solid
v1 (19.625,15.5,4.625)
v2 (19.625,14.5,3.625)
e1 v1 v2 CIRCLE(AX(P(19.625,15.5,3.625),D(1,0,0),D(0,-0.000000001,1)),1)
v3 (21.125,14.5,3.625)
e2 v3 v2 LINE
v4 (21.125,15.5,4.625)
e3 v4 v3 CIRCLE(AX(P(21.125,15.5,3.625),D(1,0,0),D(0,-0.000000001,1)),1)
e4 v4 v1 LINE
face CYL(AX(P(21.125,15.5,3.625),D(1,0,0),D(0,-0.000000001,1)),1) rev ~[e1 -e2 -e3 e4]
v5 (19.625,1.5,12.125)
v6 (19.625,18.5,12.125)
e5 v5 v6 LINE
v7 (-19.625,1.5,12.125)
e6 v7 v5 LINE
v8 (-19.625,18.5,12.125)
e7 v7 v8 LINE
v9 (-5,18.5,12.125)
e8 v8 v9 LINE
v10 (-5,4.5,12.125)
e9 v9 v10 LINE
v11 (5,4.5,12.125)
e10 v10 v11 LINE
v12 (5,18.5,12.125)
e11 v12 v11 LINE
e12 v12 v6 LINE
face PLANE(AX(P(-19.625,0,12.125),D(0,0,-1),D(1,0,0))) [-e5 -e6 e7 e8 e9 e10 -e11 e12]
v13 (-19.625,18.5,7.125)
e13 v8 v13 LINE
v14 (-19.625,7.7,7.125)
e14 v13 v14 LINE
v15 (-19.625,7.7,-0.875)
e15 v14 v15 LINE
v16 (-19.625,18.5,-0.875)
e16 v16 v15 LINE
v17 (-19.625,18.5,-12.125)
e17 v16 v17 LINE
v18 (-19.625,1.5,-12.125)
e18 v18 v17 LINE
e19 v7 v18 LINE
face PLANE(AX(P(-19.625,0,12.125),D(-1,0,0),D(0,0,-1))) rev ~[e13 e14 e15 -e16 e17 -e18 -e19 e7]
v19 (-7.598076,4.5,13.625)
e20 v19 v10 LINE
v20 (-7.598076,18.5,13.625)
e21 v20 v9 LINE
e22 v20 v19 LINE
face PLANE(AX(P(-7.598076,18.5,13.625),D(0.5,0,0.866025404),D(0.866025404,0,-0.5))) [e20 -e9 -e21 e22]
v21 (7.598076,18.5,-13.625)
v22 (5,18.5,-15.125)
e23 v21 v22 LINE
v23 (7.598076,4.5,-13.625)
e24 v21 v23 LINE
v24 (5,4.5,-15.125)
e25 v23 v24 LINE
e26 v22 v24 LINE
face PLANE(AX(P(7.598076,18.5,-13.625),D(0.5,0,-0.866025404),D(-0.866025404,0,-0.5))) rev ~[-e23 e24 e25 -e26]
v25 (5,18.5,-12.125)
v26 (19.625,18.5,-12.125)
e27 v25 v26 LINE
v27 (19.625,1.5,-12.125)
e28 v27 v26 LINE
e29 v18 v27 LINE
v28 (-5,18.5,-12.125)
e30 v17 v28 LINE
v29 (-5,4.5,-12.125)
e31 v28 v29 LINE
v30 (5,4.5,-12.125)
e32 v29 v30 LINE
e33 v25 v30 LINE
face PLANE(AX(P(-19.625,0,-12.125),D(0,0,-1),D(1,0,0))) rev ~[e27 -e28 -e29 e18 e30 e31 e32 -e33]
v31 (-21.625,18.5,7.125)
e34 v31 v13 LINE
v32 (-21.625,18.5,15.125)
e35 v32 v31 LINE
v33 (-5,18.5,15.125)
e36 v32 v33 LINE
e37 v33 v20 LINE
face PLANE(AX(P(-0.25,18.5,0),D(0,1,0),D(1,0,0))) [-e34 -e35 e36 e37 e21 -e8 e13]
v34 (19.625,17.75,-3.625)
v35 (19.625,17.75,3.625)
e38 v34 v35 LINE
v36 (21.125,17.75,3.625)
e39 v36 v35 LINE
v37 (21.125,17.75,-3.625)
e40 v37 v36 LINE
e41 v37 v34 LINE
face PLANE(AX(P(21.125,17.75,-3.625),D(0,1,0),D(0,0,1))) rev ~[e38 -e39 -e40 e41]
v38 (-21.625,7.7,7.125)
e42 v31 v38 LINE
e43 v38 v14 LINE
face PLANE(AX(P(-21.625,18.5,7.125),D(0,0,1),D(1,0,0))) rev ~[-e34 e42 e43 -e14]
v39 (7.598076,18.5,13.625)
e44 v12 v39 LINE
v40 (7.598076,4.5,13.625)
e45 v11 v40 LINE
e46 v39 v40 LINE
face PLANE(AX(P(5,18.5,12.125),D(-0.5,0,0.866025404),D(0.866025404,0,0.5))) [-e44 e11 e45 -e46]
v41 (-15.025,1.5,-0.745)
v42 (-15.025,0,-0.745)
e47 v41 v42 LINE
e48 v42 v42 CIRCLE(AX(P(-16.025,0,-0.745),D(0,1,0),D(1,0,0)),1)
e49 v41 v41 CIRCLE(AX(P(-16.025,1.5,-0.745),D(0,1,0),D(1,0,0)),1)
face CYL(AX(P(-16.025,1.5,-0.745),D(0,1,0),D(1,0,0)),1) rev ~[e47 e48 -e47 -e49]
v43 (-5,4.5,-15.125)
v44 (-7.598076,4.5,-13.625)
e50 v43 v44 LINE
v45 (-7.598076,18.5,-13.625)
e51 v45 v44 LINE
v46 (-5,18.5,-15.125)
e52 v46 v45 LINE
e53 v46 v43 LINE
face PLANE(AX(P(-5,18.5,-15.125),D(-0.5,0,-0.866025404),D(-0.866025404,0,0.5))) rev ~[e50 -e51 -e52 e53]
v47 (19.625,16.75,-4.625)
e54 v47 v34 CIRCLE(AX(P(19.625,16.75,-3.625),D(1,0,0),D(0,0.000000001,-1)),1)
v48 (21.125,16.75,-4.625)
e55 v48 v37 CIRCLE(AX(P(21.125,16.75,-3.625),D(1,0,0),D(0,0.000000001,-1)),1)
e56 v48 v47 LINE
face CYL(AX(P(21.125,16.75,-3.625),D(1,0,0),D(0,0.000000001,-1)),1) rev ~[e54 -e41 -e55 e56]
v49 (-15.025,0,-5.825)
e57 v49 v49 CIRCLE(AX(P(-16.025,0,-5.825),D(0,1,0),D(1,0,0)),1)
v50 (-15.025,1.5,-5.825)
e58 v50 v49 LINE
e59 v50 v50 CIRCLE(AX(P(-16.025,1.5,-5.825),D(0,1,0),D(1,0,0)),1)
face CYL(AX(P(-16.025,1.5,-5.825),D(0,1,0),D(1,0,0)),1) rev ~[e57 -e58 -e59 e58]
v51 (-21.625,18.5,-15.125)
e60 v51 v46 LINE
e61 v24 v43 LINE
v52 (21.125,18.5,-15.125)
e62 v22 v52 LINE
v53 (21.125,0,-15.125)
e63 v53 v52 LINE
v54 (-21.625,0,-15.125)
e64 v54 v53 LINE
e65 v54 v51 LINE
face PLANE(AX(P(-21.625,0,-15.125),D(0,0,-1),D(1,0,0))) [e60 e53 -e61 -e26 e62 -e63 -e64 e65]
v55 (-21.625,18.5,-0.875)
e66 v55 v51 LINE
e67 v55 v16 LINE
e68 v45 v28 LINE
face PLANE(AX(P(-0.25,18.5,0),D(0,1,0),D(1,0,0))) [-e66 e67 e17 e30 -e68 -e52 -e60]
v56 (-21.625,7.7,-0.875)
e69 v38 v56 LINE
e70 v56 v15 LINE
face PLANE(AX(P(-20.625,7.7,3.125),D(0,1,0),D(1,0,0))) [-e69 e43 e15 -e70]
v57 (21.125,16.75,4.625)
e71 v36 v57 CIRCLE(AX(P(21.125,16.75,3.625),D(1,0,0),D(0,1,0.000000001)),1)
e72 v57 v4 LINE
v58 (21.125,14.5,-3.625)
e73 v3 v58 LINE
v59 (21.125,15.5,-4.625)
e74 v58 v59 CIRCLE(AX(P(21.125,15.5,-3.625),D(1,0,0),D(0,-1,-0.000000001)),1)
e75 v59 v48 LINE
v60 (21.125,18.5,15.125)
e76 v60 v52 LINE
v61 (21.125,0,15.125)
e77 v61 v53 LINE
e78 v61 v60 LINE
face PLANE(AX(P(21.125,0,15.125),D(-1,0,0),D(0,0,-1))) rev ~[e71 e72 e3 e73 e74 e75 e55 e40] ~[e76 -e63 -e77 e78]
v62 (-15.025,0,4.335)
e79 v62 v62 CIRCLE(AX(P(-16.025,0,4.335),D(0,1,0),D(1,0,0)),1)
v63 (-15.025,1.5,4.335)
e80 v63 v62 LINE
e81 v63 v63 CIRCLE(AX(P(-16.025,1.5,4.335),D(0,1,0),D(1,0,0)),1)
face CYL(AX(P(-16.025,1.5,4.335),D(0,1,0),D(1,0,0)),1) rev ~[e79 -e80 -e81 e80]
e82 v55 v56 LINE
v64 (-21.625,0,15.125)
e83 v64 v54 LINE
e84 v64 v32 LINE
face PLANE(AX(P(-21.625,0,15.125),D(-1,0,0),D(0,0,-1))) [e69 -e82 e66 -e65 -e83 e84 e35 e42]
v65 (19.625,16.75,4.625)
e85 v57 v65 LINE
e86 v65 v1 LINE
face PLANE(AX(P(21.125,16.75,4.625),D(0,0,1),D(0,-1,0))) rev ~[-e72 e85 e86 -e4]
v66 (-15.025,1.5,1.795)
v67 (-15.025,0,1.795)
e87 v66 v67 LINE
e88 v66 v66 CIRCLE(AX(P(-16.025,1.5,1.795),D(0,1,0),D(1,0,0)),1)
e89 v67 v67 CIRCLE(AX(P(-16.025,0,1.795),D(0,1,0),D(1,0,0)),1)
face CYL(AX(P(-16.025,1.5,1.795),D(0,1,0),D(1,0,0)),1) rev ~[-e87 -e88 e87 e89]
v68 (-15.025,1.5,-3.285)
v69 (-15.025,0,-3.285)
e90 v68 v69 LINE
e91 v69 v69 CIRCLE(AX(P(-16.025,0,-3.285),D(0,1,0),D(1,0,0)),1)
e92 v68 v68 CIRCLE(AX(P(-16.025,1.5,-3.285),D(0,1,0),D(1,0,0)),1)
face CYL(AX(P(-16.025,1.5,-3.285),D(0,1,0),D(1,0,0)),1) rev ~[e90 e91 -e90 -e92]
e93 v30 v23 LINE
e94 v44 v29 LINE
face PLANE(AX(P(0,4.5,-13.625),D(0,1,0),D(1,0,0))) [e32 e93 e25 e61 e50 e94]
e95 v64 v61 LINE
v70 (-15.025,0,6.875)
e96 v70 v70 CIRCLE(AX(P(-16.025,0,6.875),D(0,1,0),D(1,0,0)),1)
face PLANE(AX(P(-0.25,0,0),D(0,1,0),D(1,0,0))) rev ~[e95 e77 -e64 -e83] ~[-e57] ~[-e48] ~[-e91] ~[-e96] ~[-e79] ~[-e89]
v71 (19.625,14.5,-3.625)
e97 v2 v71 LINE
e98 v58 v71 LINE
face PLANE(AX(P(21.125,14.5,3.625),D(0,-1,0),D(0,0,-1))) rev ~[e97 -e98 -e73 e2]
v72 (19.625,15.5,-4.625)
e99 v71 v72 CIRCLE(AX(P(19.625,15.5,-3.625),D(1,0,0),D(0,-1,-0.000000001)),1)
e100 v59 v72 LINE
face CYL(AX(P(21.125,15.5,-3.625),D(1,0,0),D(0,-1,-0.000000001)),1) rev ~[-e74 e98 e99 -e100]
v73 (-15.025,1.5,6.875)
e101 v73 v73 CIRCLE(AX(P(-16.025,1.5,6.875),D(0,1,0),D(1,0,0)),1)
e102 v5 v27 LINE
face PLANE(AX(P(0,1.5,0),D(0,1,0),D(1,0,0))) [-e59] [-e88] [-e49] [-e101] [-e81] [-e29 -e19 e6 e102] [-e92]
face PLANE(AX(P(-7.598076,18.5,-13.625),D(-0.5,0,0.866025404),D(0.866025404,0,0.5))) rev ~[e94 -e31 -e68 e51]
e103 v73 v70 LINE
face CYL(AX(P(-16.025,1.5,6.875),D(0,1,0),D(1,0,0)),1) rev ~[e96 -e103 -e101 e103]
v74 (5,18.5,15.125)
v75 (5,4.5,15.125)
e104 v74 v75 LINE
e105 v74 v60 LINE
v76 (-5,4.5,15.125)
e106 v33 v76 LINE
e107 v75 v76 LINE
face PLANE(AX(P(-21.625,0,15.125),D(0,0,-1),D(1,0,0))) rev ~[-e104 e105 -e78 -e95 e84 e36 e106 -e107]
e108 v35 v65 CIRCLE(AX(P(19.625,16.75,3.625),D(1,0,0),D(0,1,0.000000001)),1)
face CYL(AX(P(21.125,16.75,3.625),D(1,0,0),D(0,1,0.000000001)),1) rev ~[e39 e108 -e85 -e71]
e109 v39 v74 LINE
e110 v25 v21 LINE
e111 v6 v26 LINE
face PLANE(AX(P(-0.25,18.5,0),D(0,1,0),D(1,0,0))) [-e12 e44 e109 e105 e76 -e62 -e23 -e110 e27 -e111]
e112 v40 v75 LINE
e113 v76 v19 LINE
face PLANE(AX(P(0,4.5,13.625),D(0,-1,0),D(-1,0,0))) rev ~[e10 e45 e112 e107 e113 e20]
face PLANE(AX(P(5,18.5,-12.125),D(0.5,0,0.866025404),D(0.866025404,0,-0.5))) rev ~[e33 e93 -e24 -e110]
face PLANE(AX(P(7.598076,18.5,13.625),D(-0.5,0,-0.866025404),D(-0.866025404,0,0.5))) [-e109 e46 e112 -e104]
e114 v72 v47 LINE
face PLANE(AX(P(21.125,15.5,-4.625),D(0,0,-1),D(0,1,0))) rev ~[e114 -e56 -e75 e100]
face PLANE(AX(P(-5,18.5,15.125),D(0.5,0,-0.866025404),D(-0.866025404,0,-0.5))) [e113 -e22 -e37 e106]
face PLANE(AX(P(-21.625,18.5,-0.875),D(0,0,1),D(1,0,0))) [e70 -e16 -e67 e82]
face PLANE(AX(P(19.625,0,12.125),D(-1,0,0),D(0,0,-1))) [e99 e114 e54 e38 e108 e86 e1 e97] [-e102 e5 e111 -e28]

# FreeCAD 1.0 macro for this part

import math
import FreeCAD as App
import Part
import Sketcher

V = App.Vector
Q = App.Units.Quantity


def add_polygon(sketch, points):
    """Adds a closed chain of lines whose ends are joined by coincident constraints."""
    first, n = sketch.GeometryCount, len(points)
    for a, b in zip(points, points[1:] + points[:1]):
        sketch.addGeometry(Part.LineSegment(App.Vector(*a, 0), App.Vector(*b, 0)), False)
    for i in range(n):
        sketch.addConstraint(Sketcher.Constraint("Coincident", first + i, 2, first + (i + 1) % n, 1))

doc = App.newDocument("Part")
params = doc.addObject("Spreadsheet::Sheet", "Params")
for row, (alias, value) in enumerate([
    ("sketch1_width", "39.25 mm"),
    ("sketch1_height", "24.25 mm"),
    ("pad1_length", "1.5 mm"),
    ("sketch2_width", "42.75 mm"),
    ("sketch2_width2", "39.25 mm"),
    ("sketch2_height", "30.25 mm"),
    ("pad2_length", "18.5 mm"),
    ("sketch3_width", "2 mm"),
    ("sketch3_height", "8 mm"),
    ("pocket1_length", "10.8 mm"),
    ("sketch4_radius", "1 mm"),
    ("sketch4_width", "1.25 mm"),
    ("sketch4_height", "7.25 mm"),
    ("sketch5_width", "10 mm"),
    ("sketch5_length", "3 mm"),
    ("pocket3_length", "14 mm"),
    ("sketch6_diameter", "2 mm"),
], start=1):
    params.set(f"A{row}", alias)
    params.set(f"B{row}", "=" + value)
    params.setAlias(f"B{row}", alias)

body = doc.addObject("PartDesign::Body", "Body")

# Sketch on XZ plane
sketch1 = body.newObject("Sketcher::SketchObject", "Sketch")
sketch1.AttachmentSupport = (doc.getObject("XZ_Plane"), [""])
sketch1.MapMode = "FlatFace"
add_polygon(sketch1, [(-19.625, -12.125), (-19.625, 12.125), (19.625, 12.125), (19.625, -12.125)])  # lines 0-3
sketch1.addConstraint([
    Sketcher.Constraint("Vertical", 0),
    Sketcher.Constraint("Horizontal", 1),
    Sketcher.Constraint("Vertical", 2),
    Sketcher.Constraint("Horizontal", 3),
    Sketcher.Constraint("Symmetric", 0, 2, 2, 2, -1, 1),
    Sketcher.Constraint("DistanceX", 1, 1, 1, 2, 39.25),
    Sketcher.Constraint("DistanceY", 0, 1, 0, 2, 24.25),
])
sketch1.setExpression("Constraints[9]", "Params.sketch1_width")
sketch1.setExpression("Constraints[10]", "Params.sketch1_height")
pad1 = body.newObject("PartDesign::Pad", "Pad")
pad1.Profile = sketch1
pad1.setExpression("Length", "Params.pad1_length")
pad1.Reversed = True

# Sketch on XZ plane
sketch2 = body.newObject("Sketcher::SketchObject", "Sketch001")
sketch2.AttachmentSupport = (doc.getObject("XZ_Plane"), [""])
sketch2.MapMode = "FlatFace"
add_polygon(sketch2, [(-21.625, -15.125), (-21.625, 15.125), (21.125, 15.125), (21.125, -15.125)])  # lines 0-3
add_polygon(sketch2, [(19.625, 12.125), (-19.625, 12.125), (-19.625, -12.125), (19.625, -12.125)])  # lines 4-7
sketch2.addConstraint([
    Sketcher.Constraint("Vertical", 0),
    Sketcher.Constraint("Horizontal", 1),
    Sketcher.Constraint("Vertical", 2),
    Sketcher.Constraint("Horizontal", 3),
    Sketcher.Constraint("Horizontal", 4),
    Sketcher.Constraint("Vertical", 5),
    Sketcher.Constraint("Horizontal", 6),
    Sketcher.Constraint("Vertical", 7),
    Sketcher.Constraint("Symmetric", 4, 2, 6, 2, -1, 1),
    Sketcher.Constraint("DistanceX", 0, 2, 4, 2, 2.0),
    Sketcher.Constraint("DistanceY", 4, 2, 0, 2, 3.0),
    Sketcher.Constraint("DistanceY", 3, 2, 5, 2, 3.0),
    Sketcher.Constraint("DistanceX", 1, 1, 1, 2, 42.75),
    Sketcher.Constraint("DistanceX", 4, 2, 4, 1, 39.25),
    Sketcher.Constraint("DistanceY", 0, 1, 0, 2, 30.25),
])
sketch2.setExpression("Constraints[20]", "Params.sketch2_width")
sketch2.setExpression("Constraints[21]", "Params.sketch2_width2")
sketch2.setExpression("Constraints[22]", "Params.sketch2_height")
pad2 = body.newObject("PartDesign::Pad", "Pad001")
pad2.Profile = sketch2
pad2.setExpression("Length", "Params.pad2_length")
pad2.Reversed = True

# Sketch on XZ plane
sketch3 = body.newObject("Sketcher::SketchObject", "Sketch002")
sketch3.AttachmentSupport = (doc.getObject("XZ_Plane"), [""])
sketch3.MapMode = "FlatFace"
sketch3.AttachmentOffset = App.Placement(V(0, 0, -18.5), App.Rotation())
add_polygon(sketch3, [(-21.625, -0.875), (-21.625, 7.125), (-19.625, 7.125), (-19.625, -0.875)])  # lines 0-3
sketch3.addConstraint([
    Sketcher.Constraint("Vertical", 0),
    Sketcher.Constraint("Horizontal", 1),
    Sketcher.Constraint("Vertical", 2),
    Sketcher.Constraint("Horizontal", 3),
    Sketcher.Constraint("DistanceX", 1, 1, 1, 2, 2.0),
    Sketcher.Constraint("DistanceY", 0, 1, 0, 2, 8.0),
    Sketcher.Constraint("DistanceX", 0, 2, -1, 1, 21.625),
    Sketcher.Constraint("DistanceY", -1, 1, 0, 2, 7.125),
])
sketch3.setExpression("Constraints[8]", "Params.sketch3_width")
sketch3.setExpression("Constraints[9]", "Params.sketch3_height")
pocket1 = body.newObject("PartDesign::Pocket", "Pocket")
pocket1.Profile = sketch3
pocket1.setExpression("Length", "Params.pocket1_length")
pocket1.Reversed = True

# Sketch on YZ plane
sketch4 = body.newObject("Sketcher::SketchObject", "Sketch003")
sketch4.AttachmentSupport = (doc.getObject("YZ_Plane"), [""])
sketch4.MapMode = "FlatFace"
sketch4.AttachmentOffset = App.Placement(V(0, 0, 21.125), App.Rotation())
sketch4.addGeometry([
    Part.LineSegment(V(14.5, 3.625, 0), V(14.5, -3.625, 0)),  # 0
    Part.ArcOfCircle(Part.Circle(V(15.5, -3.625, 0), V(0, 0, 1), 1), math.radians(-180), math.radians(-90)),  # 1
    Part.LineSegment(V(15.5, -4.625, 0), V(16.75, -4.625, 0)),  # 2
    Part.ArcOfCircle(Part.Circle(V(16.75, -3.625, 0), V(0, 0, 1), 1), math.radians(-90), math.radians(0)),  # 3
    Part.LineSegment(V(17.75, -3.625, 0), V(17.75, 3.625, 0)),  # 4
    Part.ArcOfCircle(Part.Circle(V(16.75, 3.625, 0), V(0, 0, 1), 1), math.radians(0), math.radians(90)),  # 5
    Part.LineSegment(V(16.75, 4.625, 0), V(15.5, 4.625, 0)),  # 6
    Part.ArcOfCircle(Part.Circle(V(15.5, 3.625, 0), V(0, 0, 1), 1), math.radians(90), math.radians(180)),  # 7
], False)
sketch4.addConstraint([
    Sketcher.Constraint("Tangent", 0, 2, 1, 1),
    Sketcher.Constraint("Tangent", 1, 2, 2, 1),
    Sketcher.Constraint("Tangent", 2, 2, 3, 1),
    Sketcher.Constraint("Tangent", 3, 2, 4, 1),
    Sketcher.Constraint("Tangent", 4, 2, 5, 1),
    Sketcher.Constraint("Tangent", 5, 2, 6, 1),
    Sketcher.Constraint("Tangent", 6, 2, 7, 1),
    Sketcher.Constraint("Tangent", 7, 2, 0, 1),
    Sketcher.Constraint("Vertical", 0),
    Sketcher.Constraint("Horizontal", 2),
    Sketcher.Constraint("Vertical", 4),
    Sketcher.Constraint("Horizontal", 6),
    Sketcher.Constraint("Equal", 1, 3),
    Sketcher.Constraint("Equal", 3, 5),
    Sketcher.Constraint("Equal", 5, 7),
    Sketcher.Constraint("Radius", 1, 1.0),
    Sketcher.Constraint("DistanceX", 2, 1, 2, 2, 1.25),
    Sketcher.Constraint("DistanceY", 0, 2, 0, 1, 7.25),
    Sketcher.Constraint("DistanceX", -1, 1, 1, 3, 15.5),
    Sketcher.Constraint("DistanceY", 1, 3, -1, 1, 3.625),
])
sketch4.setExpression("Constraints[15]", "Params.sketch4_radius")
sketch4.setExpression("Constraints[16]", "Params.sketch4_width")
sketch4.setExpression("Constraints[17]", "Params.sketch4_height")
pocket2 = body.newObject("PartDesign::Pocket", "Pocket001")
pocket2.Profile = sketch4
pocket2.Type = "UpToFirst"

# Sketch on XZ plane
sketch5 = body.newObject("Sketcher::SketchObject", "Sketch004")
sketch5.AttachmentSupport = (doc.getObject("XZ_Plane"), [""])
sketch5.MapMode = "FlatFace"
sketch5.AttachmentOffset = App.Placement(V(0, 0, -18.5), App.Rotation())
add_polygon(sketch5, [(-5, -15.125), (-7.598076, -13.625), (-5, -12.125), (5, -12.125), (7.598076, -13.625), (5, -15.125)])  # lines 0-5
add_polygon(sketch5, [(-5, 12.125), (-7.598076, 13.625), (-5, 15.125), (5, 15.125), (7.598076, 13.625), (5, 12.125)])  # lines 6-11
sketch5.addConstraint([
    Sketcher.Constraint("Horizontal", 2),
    Sketcher.Constraint("Horizontal", 5),
    Sketcher.Constraint("Horizontal", 8),
    Sketcher.Constraint("Horizontal", 11),
    Sketcher.Constraint("Symmetric", 3, 2, 6, 2, -1, 1),
    Sketcher.Constraint("Symmetric", 4, 2, 7, 2, -1, 1),
    Sketcher.Constraint("Symmetric", 0, 2, 9, 2, -1, 1),
    Sketcher.Constraint("Symmetric", 1, 2, 10, 2, -1, 1),
    Sketcher.Constraint("Symmetric", 0, 2, 3, 2, -2),
    Sketcher.Constraint("Parallel", 0, 3),
    Sketcher.Constraint("Parallel", 1, 4),
    Sketcher.Constraint("Parallel", 3, 6),
    Sketcher.Constraint("Parallel", 6, 9),
    Sketcher.Constraint("Vertical", 2, 2, 4, 2),
    Sketcher.Constraint("Vertical", 1, 2, 5, 2),
    Sketcher.Constraint("DistanceX", 2, 1, 2, 2, 10.0),
    Sketcher.Constraint("Angle", 0, Q("150 deg")),
    Sketcher.Constraint("Distance", 0, 3.0),
    Sketcher.Constraint("DistanceY", 1, 2, 6, 2, 25.75),
])
sketch5.setExpression("Constraints[27]", "Params.sketch5_width")
sketch5.setExpression("Constraints[29]", "Params.sketch5_length")
pocket3 = body.newObject("PartDesign::Pocket", "Pocket002")
pocket3.Profile = sketch5
pocket3.setExpression("Length", "Params.pocket3_length")
pocket3.Reversed = True

# Sketch on XZ plane
sketch6 = body.newObject("Sketcher::SketchObject", "Sketch005")
sketch6.AttachmentSupport = (doc.getObject("XZ_Plane"), [""])
sketch6.MapMode = "FlatFace"
sketch6.AttachmentOffset = App.Placement(V(0, 0, -1.5), App.Rotation())
sketch6.addGeometry([
    Part.Circle(V(-16.025, 6.875, 0), V(0, 0, 1), 1),  # 0
    Part.Circle(V(-16.025, 4.335, 0), V(0, 0, 1), 1),  # 1
    Part.Circle(V(-16.025, 1.795, 0), V(0, 0, 1), 1),  # 2
    Part.Circle(V(-16.025, -0.745, 0), V(0, 0, 1), 1),  # 3
    Part.Circle(V(-16.025, -3.285, 0), V(0, 0, 1), 1),  # 4
    Part.Circle(V(-16.025, -5.825, 0), V(0, 0, 1), 1),  # 5
], False)
sketch6.addConstraint([
    Sketcher.Constraint("Equal", 0, 1),
    Sketcher.Constraint("Equal", 1, 2),
    Sketcher.Constraint("Equal", 2, 3),
    Sketcher.Constraint("Equal", 3, 4),
    Sketcher.Constraint("Equal", 4, 5),
    Sketcher.Constraint("Vertical", 0, 3, 1, 3),
    Sketcher.Constraint("Vertical", 1, 3, 2, 3),
    Sketcher.Constraint("Vertical", 2, 3, 3, 3),
    Sketcher.Constraint("Vertical", 3, 3, 4, 3),
    Sketcher.Constraint("Vertical", 4, 3, 5, 3),
    Sketcher.Constraint("Diameter", 0, 2.0),
    Sketcher.Constraint("DistanceY", 5, 3, 0, 3, 12.7),
    Sketcher.Constraint("DistanceY", 1, 3, 0, 3, 2.54),
    Sketcher.Constraint("DistanceY", 2, 3, 1, 3, 2.54),
    Sketcher.Constraint("DistanceY", 3, 3, 2, 3, 2.54),
    Sketcher.Constraint("DistanceY", 4, 3, 3, 3, 2.54),
    Sketcher.Constraint("DistanceX", 0, 3, -1, 1, 16.025),
    Sketcher.Constraint("DistanceY", -1, 1, 0, 3, 6.875),
])
sketch6.setExpression("Constraints[10]", "Params.sketch6_diameter")
pocket4 = body.newObject("PartDesign::Pocket", "Pocket003")
pocket4.Profile = sketch6
pocket4.Type = "ThroughAll"
pocket4.Reversed = True

doc.recompute()
